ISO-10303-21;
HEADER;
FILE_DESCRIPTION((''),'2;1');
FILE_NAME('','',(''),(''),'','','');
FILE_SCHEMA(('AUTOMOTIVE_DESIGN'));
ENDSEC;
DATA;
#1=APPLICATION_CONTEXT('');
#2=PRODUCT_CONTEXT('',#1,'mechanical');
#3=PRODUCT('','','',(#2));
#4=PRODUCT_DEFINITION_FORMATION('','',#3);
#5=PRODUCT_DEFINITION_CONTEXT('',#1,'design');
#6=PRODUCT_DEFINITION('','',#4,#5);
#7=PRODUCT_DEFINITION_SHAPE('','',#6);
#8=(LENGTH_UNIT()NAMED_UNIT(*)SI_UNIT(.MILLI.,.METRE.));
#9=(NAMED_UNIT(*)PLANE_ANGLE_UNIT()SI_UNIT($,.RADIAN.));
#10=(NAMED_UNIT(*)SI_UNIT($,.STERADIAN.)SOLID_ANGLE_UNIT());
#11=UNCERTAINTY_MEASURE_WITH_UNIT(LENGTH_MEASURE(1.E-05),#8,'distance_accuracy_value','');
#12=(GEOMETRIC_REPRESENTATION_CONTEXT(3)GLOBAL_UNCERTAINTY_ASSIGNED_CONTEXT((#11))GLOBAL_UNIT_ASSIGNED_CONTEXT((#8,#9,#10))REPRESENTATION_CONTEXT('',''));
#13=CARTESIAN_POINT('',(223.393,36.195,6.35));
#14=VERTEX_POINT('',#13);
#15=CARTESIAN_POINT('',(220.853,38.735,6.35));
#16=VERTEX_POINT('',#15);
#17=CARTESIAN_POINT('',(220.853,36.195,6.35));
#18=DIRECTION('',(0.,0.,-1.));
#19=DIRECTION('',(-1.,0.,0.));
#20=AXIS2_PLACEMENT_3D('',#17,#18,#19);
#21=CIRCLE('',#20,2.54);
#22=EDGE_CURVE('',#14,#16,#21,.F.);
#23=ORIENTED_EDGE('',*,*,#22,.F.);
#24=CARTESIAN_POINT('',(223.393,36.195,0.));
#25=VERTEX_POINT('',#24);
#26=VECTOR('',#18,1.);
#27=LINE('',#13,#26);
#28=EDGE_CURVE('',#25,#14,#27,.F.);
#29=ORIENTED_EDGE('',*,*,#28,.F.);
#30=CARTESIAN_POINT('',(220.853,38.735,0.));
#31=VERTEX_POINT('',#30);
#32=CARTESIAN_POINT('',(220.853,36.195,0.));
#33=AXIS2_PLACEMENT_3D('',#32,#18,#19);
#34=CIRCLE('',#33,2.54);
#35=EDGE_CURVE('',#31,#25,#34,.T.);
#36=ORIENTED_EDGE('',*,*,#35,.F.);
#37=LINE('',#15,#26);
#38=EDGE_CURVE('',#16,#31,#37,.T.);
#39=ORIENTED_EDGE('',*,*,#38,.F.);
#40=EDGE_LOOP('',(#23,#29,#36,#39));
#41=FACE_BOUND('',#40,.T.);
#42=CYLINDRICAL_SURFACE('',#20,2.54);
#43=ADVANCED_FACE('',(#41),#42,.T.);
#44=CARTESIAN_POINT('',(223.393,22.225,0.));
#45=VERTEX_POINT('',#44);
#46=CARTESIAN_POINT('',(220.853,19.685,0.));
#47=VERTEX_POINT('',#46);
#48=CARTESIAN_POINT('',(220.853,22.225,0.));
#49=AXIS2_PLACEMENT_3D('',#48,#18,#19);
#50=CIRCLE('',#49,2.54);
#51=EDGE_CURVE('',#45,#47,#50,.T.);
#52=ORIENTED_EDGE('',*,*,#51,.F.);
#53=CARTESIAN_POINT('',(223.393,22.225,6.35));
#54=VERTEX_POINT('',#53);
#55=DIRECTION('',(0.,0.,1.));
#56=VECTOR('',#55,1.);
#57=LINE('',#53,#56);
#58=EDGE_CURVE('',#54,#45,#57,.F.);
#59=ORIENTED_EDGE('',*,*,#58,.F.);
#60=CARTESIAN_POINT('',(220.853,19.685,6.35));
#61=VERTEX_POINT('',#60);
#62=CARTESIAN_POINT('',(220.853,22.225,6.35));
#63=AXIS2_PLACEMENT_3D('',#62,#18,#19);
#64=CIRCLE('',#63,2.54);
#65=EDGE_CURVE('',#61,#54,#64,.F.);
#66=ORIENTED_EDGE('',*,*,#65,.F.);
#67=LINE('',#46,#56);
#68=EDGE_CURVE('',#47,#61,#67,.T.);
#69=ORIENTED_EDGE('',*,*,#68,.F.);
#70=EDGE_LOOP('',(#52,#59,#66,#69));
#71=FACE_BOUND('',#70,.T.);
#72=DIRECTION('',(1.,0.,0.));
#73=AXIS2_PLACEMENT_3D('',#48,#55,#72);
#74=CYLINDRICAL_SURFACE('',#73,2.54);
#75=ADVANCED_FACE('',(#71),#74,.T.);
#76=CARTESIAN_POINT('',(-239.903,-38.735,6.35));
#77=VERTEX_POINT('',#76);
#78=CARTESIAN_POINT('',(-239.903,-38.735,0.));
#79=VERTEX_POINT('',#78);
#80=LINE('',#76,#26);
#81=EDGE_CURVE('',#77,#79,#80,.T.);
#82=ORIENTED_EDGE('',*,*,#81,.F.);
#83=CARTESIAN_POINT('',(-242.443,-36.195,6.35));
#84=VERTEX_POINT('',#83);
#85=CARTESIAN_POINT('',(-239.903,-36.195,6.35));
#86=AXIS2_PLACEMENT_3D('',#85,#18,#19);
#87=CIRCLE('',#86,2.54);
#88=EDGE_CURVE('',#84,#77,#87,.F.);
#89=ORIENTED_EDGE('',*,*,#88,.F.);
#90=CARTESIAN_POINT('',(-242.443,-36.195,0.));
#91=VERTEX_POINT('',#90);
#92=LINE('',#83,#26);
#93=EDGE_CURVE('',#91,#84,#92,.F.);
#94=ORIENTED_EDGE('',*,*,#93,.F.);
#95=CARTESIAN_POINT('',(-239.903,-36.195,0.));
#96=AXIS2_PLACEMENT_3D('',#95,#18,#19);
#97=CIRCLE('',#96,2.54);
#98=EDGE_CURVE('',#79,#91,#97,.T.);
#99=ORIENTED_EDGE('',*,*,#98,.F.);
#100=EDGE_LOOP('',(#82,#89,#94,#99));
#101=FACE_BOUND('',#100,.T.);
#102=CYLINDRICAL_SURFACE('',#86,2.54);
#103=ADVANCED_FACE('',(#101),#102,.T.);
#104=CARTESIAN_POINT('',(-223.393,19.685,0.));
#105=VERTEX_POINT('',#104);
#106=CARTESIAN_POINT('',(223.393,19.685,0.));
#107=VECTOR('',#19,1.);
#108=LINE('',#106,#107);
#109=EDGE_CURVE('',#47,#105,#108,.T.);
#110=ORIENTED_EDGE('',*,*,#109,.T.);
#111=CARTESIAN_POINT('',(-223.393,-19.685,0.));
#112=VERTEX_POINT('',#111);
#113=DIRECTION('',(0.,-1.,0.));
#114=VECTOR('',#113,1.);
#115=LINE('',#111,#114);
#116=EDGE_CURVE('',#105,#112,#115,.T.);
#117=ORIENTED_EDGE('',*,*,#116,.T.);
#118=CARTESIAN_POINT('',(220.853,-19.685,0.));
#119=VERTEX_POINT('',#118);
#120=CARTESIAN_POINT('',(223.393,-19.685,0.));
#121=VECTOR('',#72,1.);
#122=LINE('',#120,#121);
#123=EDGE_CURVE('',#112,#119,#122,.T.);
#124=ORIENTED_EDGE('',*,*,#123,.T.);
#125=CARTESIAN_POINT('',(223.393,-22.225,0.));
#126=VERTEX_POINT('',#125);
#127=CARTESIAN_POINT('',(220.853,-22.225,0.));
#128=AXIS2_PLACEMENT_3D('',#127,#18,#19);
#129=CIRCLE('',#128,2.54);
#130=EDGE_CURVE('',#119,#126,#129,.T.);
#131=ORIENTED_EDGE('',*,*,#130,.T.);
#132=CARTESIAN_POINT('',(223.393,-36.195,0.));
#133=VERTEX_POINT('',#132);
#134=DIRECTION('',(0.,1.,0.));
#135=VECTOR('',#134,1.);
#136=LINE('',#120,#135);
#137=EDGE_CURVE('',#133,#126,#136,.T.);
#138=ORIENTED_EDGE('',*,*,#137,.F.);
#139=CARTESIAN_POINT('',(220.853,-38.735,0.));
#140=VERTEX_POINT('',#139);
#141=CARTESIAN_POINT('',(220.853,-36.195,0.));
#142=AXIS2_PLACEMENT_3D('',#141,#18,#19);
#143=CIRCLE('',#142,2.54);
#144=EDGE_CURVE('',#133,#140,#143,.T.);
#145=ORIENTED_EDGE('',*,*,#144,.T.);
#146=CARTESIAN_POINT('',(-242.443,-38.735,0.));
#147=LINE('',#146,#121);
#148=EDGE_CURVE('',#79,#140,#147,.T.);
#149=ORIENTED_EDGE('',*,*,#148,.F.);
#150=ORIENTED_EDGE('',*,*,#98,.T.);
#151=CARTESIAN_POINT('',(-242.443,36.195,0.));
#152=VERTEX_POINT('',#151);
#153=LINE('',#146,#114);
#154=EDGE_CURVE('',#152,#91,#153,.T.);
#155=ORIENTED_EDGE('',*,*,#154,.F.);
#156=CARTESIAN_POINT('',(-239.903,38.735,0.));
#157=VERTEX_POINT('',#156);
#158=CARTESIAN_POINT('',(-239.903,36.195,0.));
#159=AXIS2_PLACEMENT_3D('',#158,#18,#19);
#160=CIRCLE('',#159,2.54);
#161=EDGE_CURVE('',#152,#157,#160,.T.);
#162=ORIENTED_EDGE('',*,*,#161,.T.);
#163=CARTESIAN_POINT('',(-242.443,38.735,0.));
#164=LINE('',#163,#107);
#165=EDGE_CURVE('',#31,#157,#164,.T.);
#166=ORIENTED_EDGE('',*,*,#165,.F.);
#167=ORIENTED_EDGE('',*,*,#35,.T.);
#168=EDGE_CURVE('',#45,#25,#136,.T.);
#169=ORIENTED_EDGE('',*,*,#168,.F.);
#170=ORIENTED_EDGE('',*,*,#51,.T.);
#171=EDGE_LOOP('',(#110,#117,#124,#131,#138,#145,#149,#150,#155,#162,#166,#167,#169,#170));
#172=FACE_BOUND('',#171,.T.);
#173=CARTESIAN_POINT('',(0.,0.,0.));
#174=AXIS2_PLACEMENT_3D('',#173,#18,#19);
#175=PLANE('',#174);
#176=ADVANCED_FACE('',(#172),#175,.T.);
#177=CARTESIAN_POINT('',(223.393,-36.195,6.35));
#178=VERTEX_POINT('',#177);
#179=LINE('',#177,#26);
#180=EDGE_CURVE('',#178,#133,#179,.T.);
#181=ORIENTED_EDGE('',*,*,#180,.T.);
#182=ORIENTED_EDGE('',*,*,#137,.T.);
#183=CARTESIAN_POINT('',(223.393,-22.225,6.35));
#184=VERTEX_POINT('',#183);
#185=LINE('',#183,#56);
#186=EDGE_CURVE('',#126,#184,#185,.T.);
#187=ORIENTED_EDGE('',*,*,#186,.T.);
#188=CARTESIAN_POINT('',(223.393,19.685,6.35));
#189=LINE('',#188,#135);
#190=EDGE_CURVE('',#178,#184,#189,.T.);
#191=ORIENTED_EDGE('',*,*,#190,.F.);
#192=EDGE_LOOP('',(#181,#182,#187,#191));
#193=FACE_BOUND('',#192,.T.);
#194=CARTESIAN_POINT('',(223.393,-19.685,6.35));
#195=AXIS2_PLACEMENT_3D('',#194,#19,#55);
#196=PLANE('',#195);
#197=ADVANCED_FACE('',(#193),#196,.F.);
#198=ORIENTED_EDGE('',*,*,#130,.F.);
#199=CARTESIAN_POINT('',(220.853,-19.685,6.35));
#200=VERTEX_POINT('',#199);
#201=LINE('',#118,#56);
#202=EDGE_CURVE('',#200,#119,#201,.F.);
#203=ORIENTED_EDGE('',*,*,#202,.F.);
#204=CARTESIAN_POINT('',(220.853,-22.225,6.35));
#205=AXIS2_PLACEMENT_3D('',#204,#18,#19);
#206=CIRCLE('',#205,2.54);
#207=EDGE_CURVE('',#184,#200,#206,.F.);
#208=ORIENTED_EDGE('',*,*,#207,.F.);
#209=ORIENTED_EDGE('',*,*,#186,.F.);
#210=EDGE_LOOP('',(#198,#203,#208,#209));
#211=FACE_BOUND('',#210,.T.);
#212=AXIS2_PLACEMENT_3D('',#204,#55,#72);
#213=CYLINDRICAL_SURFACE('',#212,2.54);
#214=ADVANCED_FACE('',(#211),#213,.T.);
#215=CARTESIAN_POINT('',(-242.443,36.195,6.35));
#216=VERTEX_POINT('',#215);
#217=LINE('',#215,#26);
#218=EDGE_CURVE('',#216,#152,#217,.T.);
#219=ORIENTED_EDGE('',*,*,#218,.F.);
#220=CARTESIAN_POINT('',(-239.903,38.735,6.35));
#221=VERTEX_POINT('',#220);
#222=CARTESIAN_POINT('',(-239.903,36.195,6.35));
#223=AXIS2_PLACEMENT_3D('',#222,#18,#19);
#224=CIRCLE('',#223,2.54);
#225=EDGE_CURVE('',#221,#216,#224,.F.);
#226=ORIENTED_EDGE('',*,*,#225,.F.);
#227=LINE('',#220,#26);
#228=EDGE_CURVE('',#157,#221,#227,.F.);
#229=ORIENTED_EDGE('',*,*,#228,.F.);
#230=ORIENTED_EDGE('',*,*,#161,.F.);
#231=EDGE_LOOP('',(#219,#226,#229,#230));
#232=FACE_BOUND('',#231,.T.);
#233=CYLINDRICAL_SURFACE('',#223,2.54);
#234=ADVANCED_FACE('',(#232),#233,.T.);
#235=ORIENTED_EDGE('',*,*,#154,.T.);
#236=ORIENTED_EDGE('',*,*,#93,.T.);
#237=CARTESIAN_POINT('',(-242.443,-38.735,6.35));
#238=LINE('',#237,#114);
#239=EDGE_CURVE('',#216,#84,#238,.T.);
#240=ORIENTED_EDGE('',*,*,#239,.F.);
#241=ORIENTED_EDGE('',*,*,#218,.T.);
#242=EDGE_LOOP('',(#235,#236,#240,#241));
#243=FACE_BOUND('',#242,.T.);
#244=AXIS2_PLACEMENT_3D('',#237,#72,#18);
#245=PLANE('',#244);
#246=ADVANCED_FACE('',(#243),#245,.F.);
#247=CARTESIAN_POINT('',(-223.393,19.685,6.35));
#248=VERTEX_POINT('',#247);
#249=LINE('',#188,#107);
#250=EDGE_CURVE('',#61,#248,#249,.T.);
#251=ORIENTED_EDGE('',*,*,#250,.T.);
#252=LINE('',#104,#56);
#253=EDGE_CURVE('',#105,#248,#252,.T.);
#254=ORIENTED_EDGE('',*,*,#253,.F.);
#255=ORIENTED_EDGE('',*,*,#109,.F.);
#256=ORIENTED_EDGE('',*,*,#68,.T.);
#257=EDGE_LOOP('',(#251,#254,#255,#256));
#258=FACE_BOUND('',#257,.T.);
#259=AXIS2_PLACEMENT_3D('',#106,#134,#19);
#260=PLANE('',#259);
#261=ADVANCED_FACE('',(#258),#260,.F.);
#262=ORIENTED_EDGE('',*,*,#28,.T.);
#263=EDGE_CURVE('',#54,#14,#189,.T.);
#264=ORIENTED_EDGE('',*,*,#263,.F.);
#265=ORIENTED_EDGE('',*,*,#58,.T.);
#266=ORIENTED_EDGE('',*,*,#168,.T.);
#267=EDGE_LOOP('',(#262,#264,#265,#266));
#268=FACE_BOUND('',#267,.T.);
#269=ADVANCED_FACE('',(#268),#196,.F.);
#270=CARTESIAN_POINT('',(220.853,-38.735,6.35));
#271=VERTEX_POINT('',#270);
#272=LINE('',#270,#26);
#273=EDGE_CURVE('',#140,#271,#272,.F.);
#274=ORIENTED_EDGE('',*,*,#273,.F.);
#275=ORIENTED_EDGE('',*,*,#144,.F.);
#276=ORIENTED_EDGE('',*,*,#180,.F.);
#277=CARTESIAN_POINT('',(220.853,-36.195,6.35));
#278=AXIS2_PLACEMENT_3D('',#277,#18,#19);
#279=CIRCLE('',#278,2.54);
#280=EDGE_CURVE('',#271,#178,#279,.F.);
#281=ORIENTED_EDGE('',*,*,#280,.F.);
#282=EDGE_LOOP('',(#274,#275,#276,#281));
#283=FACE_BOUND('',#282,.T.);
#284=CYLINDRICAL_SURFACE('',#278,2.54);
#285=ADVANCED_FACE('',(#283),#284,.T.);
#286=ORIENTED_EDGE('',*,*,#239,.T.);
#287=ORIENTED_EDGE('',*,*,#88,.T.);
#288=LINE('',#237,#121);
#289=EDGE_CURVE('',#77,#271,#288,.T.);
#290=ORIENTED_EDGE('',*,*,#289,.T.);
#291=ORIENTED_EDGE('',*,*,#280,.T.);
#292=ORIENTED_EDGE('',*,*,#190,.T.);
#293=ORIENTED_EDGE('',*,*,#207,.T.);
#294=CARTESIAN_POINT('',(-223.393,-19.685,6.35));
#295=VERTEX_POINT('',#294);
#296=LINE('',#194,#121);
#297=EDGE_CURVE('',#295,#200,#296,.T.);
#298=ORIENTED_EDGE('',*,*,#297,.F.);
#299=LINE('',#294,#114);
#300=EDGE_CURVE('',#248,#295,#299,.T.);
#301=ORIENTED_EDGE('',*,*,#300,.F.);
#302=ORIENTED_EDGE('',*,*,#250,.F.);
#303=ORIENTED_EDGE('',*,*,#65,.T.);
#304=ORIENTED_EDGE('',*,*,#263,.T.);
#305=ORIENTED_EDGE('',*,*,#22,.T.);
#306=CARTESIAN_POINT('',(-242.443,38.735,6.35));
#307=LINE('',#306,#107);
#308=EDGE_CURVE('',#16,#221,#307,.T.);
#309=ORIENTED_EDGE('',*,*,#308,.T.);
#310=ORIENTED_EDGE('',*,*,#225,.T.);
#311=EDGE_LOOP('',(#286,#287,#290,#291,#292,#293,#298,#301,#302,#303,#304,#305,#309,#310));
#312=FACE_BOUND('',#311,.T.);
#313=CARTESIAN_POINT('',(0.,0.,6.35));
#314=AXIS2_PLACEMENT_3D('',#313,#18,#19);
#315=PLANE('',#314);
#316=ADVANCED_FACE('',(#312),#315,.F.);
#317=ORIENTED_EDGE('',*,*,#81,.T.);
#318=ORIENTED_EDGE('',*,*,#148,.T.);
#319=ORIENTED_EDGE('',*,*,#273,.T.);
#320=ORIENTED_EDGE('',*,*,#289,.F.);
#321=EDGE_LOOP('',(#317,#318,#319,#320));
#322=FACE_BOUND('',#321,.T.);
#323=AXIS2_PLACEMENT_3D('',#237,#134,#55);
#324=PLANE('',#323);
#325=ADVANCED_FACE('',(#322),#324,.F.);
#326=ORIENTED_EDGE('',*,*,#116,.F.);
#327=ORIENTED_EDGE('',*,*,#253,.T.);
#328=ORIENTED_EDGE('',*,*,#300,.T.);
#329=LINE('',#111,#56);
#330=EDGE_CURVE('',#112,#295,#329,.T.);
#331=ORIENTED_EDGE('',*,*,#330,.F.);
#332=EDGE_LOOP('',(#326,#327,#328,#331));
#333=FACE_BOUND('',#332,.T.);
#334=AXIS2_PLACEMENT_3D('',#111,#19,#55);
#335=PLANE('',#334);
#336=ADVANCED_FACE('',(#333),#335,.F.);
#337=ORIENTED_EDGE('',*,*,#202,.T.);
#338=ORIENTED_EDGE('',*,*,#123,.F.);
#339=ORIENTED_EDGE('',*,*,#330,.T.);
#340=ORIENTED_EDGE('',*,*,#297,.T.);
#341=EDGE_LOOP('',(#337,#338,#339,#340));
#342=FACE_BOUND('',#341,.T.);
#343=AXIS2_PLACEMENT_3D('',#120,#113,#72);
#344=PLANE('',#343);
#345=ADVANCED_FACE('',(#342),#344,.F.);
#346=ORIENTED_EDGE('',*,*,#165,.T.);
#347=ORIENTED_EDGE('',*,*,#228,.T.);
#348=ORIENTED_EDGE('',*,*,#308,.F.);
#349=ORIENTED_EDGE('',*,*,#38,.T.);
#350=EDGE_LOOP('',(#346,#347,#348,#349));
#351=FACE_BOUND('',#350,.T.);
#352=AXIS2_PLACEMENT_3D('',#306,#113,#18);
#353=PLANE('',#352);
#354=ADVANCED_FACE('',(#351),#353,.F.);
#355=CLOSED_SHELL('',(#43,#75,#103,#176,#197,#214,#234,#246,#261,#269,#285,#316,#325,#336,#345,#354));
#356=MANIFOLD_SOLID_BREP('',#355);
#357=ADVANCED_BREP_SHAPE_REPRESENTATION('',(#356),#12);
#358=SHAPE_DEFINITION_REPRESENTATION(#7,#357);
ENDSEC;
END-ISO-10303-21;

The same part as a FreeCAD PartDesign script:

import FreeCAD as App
import Part
import Sketcher
Q = App.Units.Quantity


def edges_at(feature, points):
    """Names of the edges that pass closest to the given points."""
    edges = feature.Shape.Edges
    near = lambda p: min(range(len(edges)), key=lambda i: edges[i].distToShape(Part.Vertex(*p))[0])
    return sorted({f"Edge{near(p) + 1}" for p in points})

doc = App.newDocument("Part")
params = doc.addObject("Spreadsheet::Sheet", "Params")
for row, (alias, value) in enumerate([
    ("sketch1_width", "18.34 in"),
    ("sketch1_height", "3.05 in"),
    ("pad1_length", "0.25 in"),
    ("sketch2_width", "17.59 in"),
    ("sketch2_height", "1.55 in"),
    ("fillet_radius", "0.1 in"),
], start=1):
    params.set(f"A{row}", alias)
    params.set(f"B{row}", "=" + value)
    params.setAlias(f"B{row}", alias)

body = doc.addObject("PartDesign::Body", "Body")

# Sketch on XY plane
sketch1 = body.newObject("Sketcher::SketchObject", "Sketch")
sketch1.AttachmentSupport = (doc.getObject("XY_Plane"), [""])
sketch1.MapMode = "FlatFace"
sketch1.addGeometry(Part.LineSegment(App.Vector(-242, 39, 0), App.Vector(-242, -39, 0)), False)
sketch1.addGeometry(Part.LineSegment(App.Vector(-242, -39, 0), App.Vector(223, -39, 0)), False)
sketch1.addGeometry(Part.LineSegment(App.Vector(223, -39, 0), App.Vector(223, 39, 0)), False)
sketch1.addGeometry(Part.LineSegment(App.Vector(223, 39, 0), App.Vector(-242, 39, 0)), False)
sketch1.addConstraint(Sketcher.Constraint("Coincident", 0, 2, 1, 1))
sketch1.addConstraint(Sketcher.Constraint("Coincident", 1, 2, 2, 1))
sketch1.addConstraint(Sketcher.Constraint("Coincident", 2, 2, 3, 1))
sketch1.addConstraint(Sketcher.Constraint("Coincident", 3, 2, 0, 1))
sketch1.addConstraint(Sketcher.Constraint("Vertical", 0))
sketch1.addConstraint(Sketcher.Constraint("Horizontal", 1))
sketch1.addConstraint(Sketcher.Constraint("Vertical", 2))
sketch1.addConstraint(Sketcher.Constraint("Horizontal", 3))
sketch1.addConstraint(Sketcher.Constraint("DistanceX", 1, 1, 1, 2, Q("18.34 in")))
sketch1.addConstraint(Sketcher.Constraint("DistanceY", 0, 2, 0, 1, Q("3.05 in")))
sketch1.addConstraint(Sketcher.Constraint("DistanceX", 0, 2, -1, 1, Q("9.545 in")))
sketch1.addConstraint(Sketcher.Constraint("DistanceY", 0, 2, -1, 1, Q("1.525 in")))
sketch1.setExpression("Constraints[8]", "Params.sketch1_width")
sketch1.setExpression("Constraints[9]", "Params.sketch1_height")
pad1 = body.newObject("PartDesign::Pad", "Pad")
pad1.Profile = sketch1
pad1.setExpression("Length", "Params.pad1_length")

# Sketch on XY plane
sketch2 = body.newObject("Sketcher::SketchObject", "Sketch001")
sketch2.AttachmentSupport = (doc.getObject("XY_Plane"), [""])
sketch2.MapMode = "FlatFace"
sketch2.AttachmentOffset = App.Placement(App.Vector(0, 0, 0.25 * 25.4), App.Rotation())
sketch2.addGeometry(Part.LineSegment(App.Vector(-223, 20, 0), App.Vector(-223, -20, 0)), False)
sketch2.addGeometry(Part.LineSegment(App.Vector(-223, -20, 0), App.Vector(223, -20, 0)), False)
sketch2.addGeometry(Part.LineSegment(App.Vector(223, -20, 0), App.Vector(223, 20, 0)), False)
sketch2.addGeometry(Part.LineSegment(App.Vector(223, 20, 0), App.Vector(-223, 20, 0)), False)
sketch2.addConstraint(Sketcher.Constraint("Coincident", 0, 2, 1, 1))
sketch2.addConstraint(Sketcher.Constraint("Coincident", 1, 2, 2, 1))
sketch2.addConstraint(Sketcher.Constraint("Coincident", 2, 2, 3, 1))
sketch2.addConstraint(Sketcher.Constraint("Coincident", 3, 2, 0, 1))
sketch2.addConstraint(Sketcher.Constraint("Vertical", 0))
sketch2.addConstraint(Sketcher.Constraint("Horizontal", 1))
sketch2.addConstraint(Sketcher.Constraint("Vertical", 2))
sketch2.addConstraint(Sketcher.Constraint("Horizontal", 3))
sketch2.addConstraint(Sketcher.Constraint("Symmetric", 0, 2, 2, 2, -1, 1))
sketch2.addConstraint(Sketcher.Constraint("DistanceX", 1, 1, 1, 2, Q("17.59 in")))
sketch2.addConstraint(Sketcher.Constraint("DistanceY", 0, 2, 0, 1, Q("1.55 in")))
sketch2.setExpression("Constraints[9]", "Params.sketch2_width")
sketch2.setExpression("Constraints[10]", "Params.sketch2_height")
pocket1 = body.newObject("PartDesign::Pocket", "Pocket")
pocket1.Profile = sketch2
pocket1.Type = "ThroughAll"
doc.recompute()

fillet = body.newObject("PartDesign::Fillet", "Fillet")
fillet.Base = (pocket1, edges_at(pocket1, [
    (223.393, -38.735, 3.175),
    (-242.443, -38.735, 3.175),
    (-242.443, 38.735, 3.175),
    (223.393, 38.735, 3.175),
    (223.393, 19.685, 3.175),
    (223.393, -19.685, 3.175),
]))
fillet.setExpression("Radius", "Params.fillet_radius")

doc.recompute()
